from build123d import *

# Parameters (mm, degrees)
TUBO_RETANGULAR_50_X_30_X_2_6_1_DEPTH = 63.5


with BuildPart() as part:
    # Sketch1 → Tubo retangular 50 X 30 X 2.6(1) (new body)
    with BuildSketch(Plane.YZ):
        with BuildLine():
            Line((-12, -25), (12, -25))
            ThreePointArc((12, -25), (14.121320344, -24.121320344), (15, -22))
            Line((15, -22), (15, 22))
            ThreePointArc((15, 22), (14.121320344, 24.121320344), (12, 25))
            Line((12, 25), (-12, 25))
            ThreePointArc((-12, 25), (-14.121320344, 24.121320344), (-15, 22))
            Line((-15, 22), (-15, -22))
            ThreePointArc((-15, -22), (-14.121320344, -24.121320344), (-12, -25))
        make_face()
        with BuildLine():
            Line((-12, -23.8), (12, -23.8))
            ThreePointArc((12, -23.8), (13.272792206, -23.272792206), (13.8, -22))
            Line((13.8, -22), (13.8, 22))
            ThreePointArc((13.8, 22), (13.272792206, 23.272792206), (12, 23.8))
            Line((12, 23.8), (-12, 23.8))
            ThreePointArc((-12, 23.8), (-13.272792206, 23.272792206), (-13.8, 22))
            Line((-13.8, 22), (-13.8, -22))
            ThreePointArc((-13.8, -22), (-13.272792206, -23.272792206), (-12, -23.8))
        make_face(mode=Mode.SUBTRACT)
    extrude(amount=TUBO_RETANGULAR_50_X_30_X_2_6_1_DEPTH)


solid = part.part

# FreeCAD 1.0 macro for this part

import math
import FreeCAD as App
import Part
import Sketcher

V = App.Vector

doc = App.newDocument("Part")
body = doc.addObject("PartDesign::Body", "Body")

# Sketch on YZ plane
sketch1 = body.newObject("Sketcher::SketchObject", "Sketch")
sketch1.AttachmentSupport = (doc.getObject("YZ_Plane"), [""])
sketch1.MapMode = "FlatFace"
sketch1.addGeometry(Part.LineSegment(V(-12, -25, 0), V(12, -25, 0)), False)
sketch1.addGeometry(Part.ArcOfCircle(Part.Circle(V(12, -22, 0), V(0, 0, 1), 3), math.radians(-90), math.radians(0)), False)
sketch1.addGeometry(Part.LineSegment(V(15, -22, 0), V(15, 22, 0)), False)
sketch1.addGeometry(Part.ArcOfCircle(Part.Circle(V(12, 22, 0), V(0, 0, 1), 3), math.radians(0), math.radians(90)), False)
sketch1.addGeometry(Part.LineSegment(V(12, 25, 0), V(-12, 25, 0)), False)
sketch1.addGeometry(Part.ArcOfCircle(Part.Circle(V(-12, 22, 0), V(0, 0, 1), 3), math.radians(90), math.radians(180)), False)
sketch1.addGeometry(Part.LineSegment(V(-15, 22, 0), V(-15, -22, 0)), False)
sketch1.addGeometry(Part.ArcOfCircle(Part.Circle(V(-12, -22, 0), V(0, 0, 1), 3), math.radians(180), math.radians(270)), False)
sketch1.addGeometry(Part.LineSegment(V(12, -23.8, 0), V(-12, -23.8, 0)), False)
sketch1.addGeometry(Part.ArcOfCircle(Part.Circle(V(-12, -22, 0), V(0, 0, 1), 1.8), math.radians(180), math.radians(270)), False)
sketch1.addGeometry(Part.LineSegment(V(-13.8, -22, 0), V(-13.8, 22, 0)), False)
sketch1.addGeometry(Part.ArcOfCircle(Part.Circle(V(-12, 22, 0), V(0, 0, 1), 1.8), math.radians(90), math.radians(180)), False)
sketch1.addGeometry(Part.LineSegment(V(-12, 23.8, 0), V(12, 23.8, 0)), False)
sketch1.addGeometry(Part.ArcOfCircle(Part.Circle(V(12, 22, 0), V(0, 0, 1), 1.8), math.radians(0), math.radians(90)), False)
sketch1.addGeometry(Part.LineSegment(V(13.8, 22, 0), V(13.8, -22, 0)), False)
sketch1.addGeometry(Part.ArcOfCircle(Part.Circle(V(12, -22, 0), V(0, 0, 1), 1.8), math.radians(-90), math.radians(0)), False)
sketch1.addConstraint(Sketcher.Constraint("Tangent", 0, 2, 1, 1))
sketch1.addConstraint(Sketcher.Constraint("Tangent", 1, 2, 2, 1))
sketch1.addConstraint(Sketcher.Constraint("Tangent", 2, 2, 3, 1))
sketch1.addConstraint(Sketcher.Constraint("Tangent", 3, 2, 4, 1))
sketch1.addConstraint(Sketcher.Constraint("Tangent", 4, 2, 5, 1))
sketch1.addConstraint(Sketcher.Constraint("Tangent", 5, 2, 6, 1))
sketch1.addConstraint(Sketcher.Constraint("Tangent", 6, 2, 7, 1))
sketch1.addConstraint(Sketcher.Constraint("Tangent", 7, 2, 0, 1))
sketch1.addConstraint(Sketcher.Constraint("Tangent", 8, 2, 9, 2))
sketch1.addConstraint(Sketcher.Constraint("Tangent", 9, 1, 10, 1))
sketch1.addConstraint(Sketcher.Constraint("Tangent", 10, 2, 11, 2))
sketch1.addConstraint(Sketcher.Constraint("Tangent", 11, 1, 12, 1))
sketch1.addConstraint(Sketcher.Constraint("Tangent", 12, 2, 13, 2))
sketch1.addConstraint(Sketcher.Constraint("Tangent", 13, 1, 14, 1))
sketch1.addConstraint(Sketcher.Constraint("Tangent", 14, 2, 15, 2))
sketch1.addConstraint(Sketcher.Constraint("Tangent", 15, 1, 8, 1))
sketch1.addConstraint(Sketcher.Constraint("Horizontal", 0))
sketch1.addConstraint(Sketcher.Constraint("Vertical", 2))
sketch1.addConstraint(Sketcher.Constraint("Horizontal", 4))
sketch1.addConstraint(Sketcher.Constraint("Vertical", 6))
sketch1.addConstraint(Sketcher.Constraint("Horizontal", 8))
sketch1.addConstraint(Sketcher.Constraint("Vertical", 10))
sketch1.addConstraint(Sketcher.Constraint("Horizontal", 12))
sketch1.addConstraint(Sketcher.Constraint("Vertical", 14))
sketch1.addConstraint(Sketcher.Constraint("Coincident", 9, 3, 7, 3))
sketch1.addConstraint(Sketcher.Constraint("Coincident", 11, 3, 5, 3))
sketch1.addConstraint(Sketcher.Constraint("Coincident", 13, 3, 3, 3))
sketch1.addConstraint(Sketcher.Constraint("Equal", 1, 3))
sketch1.addConstraint(Sketcher.Constraint("Equal", 3, 5))
sketch1.addConstraint(Sketcher.Constraint("Equal", 5, 7))
sketch1.addConstraint(Sketcher.Constraint("Equal", 13, 15))
sketch1.addConstraint(Sketcher.Constraint("Symmetric", 1, 3, 5, 3, -1, 1))
sketch1.addConstraint(Sketcher.Constraint("Radius", 1, 3.0))
sketch1.addConstraint(Sketcher.Constraint("Radius", 9, 1.8))
sketch1.addConstraint(Sketcher.Constraint("DistanceX", 0, 1, 0, 2, 24.0))
sketch1.addConstraint(Sketcher.Constraint("DistanceY", 2, 1, 2, 2, 44.0))
pad1 = body.newObject("PartDesign::Pad", "Pad")
pad1.Profile = sketch1
pad1.Length = 63.5

doc.recompute()
